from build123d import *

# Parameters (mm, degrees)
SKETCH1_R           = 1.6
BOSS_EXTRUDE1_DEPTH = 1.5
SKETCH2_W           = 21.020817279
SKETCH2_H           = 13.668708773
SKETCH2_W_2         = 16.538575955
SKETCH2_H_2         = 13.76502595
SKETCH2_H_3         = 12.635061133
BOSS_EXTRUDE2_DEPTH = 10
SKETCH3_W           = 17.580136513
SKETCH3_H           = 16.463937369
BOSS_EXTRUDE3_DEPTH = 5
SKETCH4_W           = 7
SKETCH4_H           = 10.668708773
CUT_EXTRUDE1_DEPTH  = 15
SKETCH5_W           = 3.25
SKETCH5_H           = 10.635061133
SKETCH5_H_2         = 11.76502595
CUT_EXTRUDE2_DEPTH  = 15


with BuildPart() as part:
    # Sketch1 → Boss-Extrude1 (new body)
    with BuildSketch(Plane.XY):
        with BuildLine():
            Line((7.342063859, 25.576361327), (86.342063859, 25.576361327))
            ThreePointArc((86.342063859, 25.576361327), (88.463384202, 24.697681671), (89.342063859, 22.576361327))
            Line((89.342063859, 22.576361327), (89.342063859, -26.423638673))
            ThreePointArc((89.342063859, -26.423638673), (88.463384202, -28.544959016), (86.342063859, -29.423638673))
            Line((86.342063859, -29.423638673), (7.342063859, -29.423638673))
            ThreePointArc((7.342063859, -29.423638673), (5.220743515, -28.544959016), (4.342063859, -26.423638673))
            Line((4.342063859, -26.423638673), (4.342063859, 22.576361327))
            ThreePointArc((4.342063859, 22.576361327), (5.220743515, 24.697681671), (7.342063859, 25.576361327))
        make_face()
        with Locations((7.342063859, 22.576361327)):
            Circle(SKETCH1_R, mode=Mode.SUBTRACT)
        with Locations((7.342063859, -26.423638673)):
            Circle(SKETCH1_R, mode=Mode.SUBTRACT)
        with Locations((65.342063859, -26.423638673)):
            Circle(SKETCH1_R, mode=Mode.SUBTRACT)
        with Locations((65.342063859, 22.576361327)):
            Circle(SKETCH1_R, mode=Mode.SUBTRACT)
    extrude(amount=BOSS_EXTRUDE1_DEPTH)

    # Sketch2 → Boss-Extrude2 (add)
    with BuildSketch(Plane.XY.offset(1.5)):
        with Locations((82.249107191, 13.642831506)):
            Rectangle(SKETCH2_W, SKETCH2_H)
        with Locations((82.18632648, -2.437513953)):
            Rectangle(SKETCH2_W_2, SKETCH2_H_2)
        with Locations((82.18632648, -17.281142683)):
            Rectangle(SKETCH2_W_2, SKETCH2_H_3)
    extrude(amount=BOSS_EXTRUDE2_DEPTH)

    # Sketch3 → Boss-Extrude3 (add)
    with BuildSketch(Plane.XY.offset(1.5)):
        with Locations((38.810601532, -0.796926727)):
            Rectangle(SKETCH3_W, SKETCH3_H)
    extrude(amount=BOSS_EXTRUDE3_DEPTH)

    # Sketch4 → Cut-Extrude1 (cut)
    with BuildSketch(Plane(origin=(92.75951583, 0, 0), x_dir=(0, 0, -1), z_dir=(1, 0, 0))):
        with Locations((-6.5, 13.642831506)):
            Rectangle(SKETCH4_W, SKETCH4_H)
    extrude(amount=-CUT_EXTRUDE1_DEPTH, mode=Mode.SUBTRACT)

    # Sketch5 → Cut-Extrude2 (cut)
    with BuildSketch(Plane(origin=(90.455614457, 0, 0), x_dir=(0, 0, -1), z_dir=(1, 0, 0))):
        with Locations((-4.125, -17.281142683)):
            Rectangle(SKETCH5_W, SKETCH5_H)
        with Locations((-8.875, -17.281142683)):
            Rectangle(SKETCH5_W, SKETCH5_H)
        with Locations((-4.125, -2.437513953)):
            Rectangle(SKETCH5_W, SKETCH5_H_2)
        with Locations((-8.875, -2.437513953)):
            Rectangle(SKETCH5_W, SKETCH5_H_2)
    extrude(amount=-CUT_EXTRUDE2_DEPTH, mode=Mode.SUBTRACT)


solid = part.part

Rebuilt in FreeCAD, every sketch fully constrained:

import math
import FreeCAD as App
import Part
import Sketcher

doc = App.newDocument("Part")
body = doc.addObject("PartDesign::Body", "Body")

sketch1 = body.newObject("Sketcher::SketchObject", "Sketch")
sketch1.AttachmentSupport = (doc.getObject("XY_Plane"), [""])
sketch1.MapMode = "FlatFace"
sketch1.addGeometry(Part.LineSegment(App.Vector(86.342064, 25.576361, 0), App.Vector(7.342064, 25.576361, 0)), False)
sketch1.addGeometry(Part.ArcOfCircle(Part.Circle(App.Vector(7.342064, 22.576361, 0), App.Vector(0, 0, 1), 3), math.radians(90), math.radians(180)), False)
sketch1.addGeometry(Part.LineSegment(App.Vector(4.342064, 22.576361, 0), App.Vector(4.342064, -26.423639, 0)), False)
sketch1.addGeometry(Part.ArcOfCircle(Part.Circle(App.Vector(7.342064, -26.423639, 0), App.Vector(0, 0, 1), 3), math.radians(180), math.radians(270)), False)
sketch1.addGeometry(Part.LineSegment(App.Vector(7.342064, -29.423639, 0), App.Vector(86.342064, -29.423639, 0)), False)
sketch1.addGeometry(Part.ArcOfCircle(Part.Circle(App.Vector(86.342064, -26.423639, 0), App.Vector(0, 0, 1), 3), math.radians(-90), math.radians(0)), False)
sketch1.addGeometry(Part.LineSegment(App.Vector(89.342064, -26.423639, 0), App.Vector(89.342064, 22.576361, 0)), False)
sketch1.addGeometry(Part.ArcOfCircle(Part.Circle(App.Vector(86.342064, 22.576361, 0), App.Vector(0, 0, 1), 3), math.radians(0), math.radians(90)), False)
sketch1.addGeometry(Part.Circle(App.Vector(65.342064, -26.423639, 0), App.Vector(0, 0, 1), 1.6), False)
sketch1.addGeometry(Part.Circle(App.Vector(7.342064, -26.423639, 0), App.Vector(0, 0, 1), 1.6), False)
sketch1.addGeometry(Part.Circle(App.Vector(65.342064, 22.576361, 0), App.Vector(0, 0, 1), 1.6), False)
sketch1.addGeometry(Part.Circle(App.Vector(7.342064, 22.576361, 0), App.Vector(0, 0, 1), 1.6), False)
sketch1.addConstraint(Sketcher.Constraint("Tangent", 0, 2, 1, 1))
sketch1.addConstraint(Sketcher.Constraint("Tangent", 1, 2, 2, 1))
sketch1.addConstraint(Sketcher.Constraint("Tangent", 2, 2, 3, 1))
sketch1.addConstraint(Sketcher.Constraint("Tangent", 3, 2, 4, 1))
sketch1.addConstraint(Sketcher.Constraint("Tangent", 4, 2, 5, 1))
sketch1.addConstraint(Sketcher.Constraint("Tangent", 5, 2, 6, 1))
sketch1.addConstraint(Sketcher.Constraint("Tangent", 6, 2, 7, 1))
sketch1.addConstraint(Sketcher.Constraint("Tangent", 7, 2, 0, 1))
sketch1.addConstraint(Sketcher.Constraint("Horizontal", 0))
sketch1.addConstraint(Sketcher.Constraint("Vertical", 2))
sketch1.addConstraint(Sketcher.Constraint("Horizontal", 4))
sketch1.addConstraint(Sketcher.Constraint("Vertical", 6))
sketch1.addConstraint(Sketcher.Constraint("Coincident", 9, 3, 3, 3))
sketch1.addConstraint(Sketcher.Constraint("Coincident", 11, 3, 1, 3))
sketch1.addConstraint(Sketcher.Constraint("Equal", 1, 3))
sketch1.addConstraint(Sketcher.Constraint("Equal", 3, 5))
sketch1.addConstraint(Sketcher.Constraint("Equal", 5, 7))
sketch1.addConstraint(Sketcher.Constraint("Equal", 8, 9))
sketch1.addConstraint(Sketcher.Constraint("Equal", 9, 10))
sketch1.addConstraint(Sketcher.Constraint("Equal", 10, 11))
sketch1.addConstraint(Sketcher.Constraint("Horizontal", 5, 3, 8, 3))
sketch1.addConstraint(Sketcher.Constraint("Horizontal", 7, 3, 10, 3))
sketch1.addConstraint(Sketcher.Constraint("Vertical", 8, 3, 10, 3))
sketch1.addConstraint(Sketcher.Constraint("Radius", 1, 3.0))
sketch1.addConstraint(Sketcher.Constraint("Diameter", 8, 3.2))
sketch1.addConstraint(Sketcher.Constraint("DistanceX", 0, 2, 0, 1, 79.0))
sketch1.addConstraint(Sketcher.Constraint("DistanceY", 2, 2, 2, 1, 49.0))
sketch1.addConstraint(Sketcher.Constraint("DistanceX", 8, 3, 5, 3, 21.0))
sketch1.addConstraint(Sketcher.Constraint("DistanceY", -1, 1, 1, 3, 22.576361))
sketch1.addConstraint(Sketcher.Constraint("DistanceX", -1, 1, 1, 3, 7.342064))
pad1 = body.newObject("PartDesign::Pad", "Pad")
pad1.Profile = sketch1
pad1.Length = 1.5

sketch2 = body.newObject("Sketcher::SketchObject", "Sketch001")
sketch2.AttachmentSupport = (doc.getObject("XY_Plane"), [""])
sketch2.MapMode = "FlatFace"
sketch2.AttachmentOffset = App.Placement(App.Vector(0, 0, 1.5), App.Rotation())
sketch2.addGeometry(Part.LineSegment(App.Vector(71.738699, 20.477186, 0), App.Vector(71.738699, 6.808477, 0)), False)
sketch2.addGeometry(Part.LineSegment(App.Vector(71.738699, 6.808477, 0), App.Vector(92.759516, 6.808477, 0)), False)
sketch2.addGeometry(Part.LineSegment(App.Vector(92.759516, 6.808477, 0), App.Vector(92.759516, 20.477186, 0)), False)
sketch2.addGeometry(Part.LineSegment(App.Vector(92.759516, 20.477186, 0), App.Vector(71.738699, 20.477186, 0)), False)
sketch2.addGeometry(Part.LineSegment(App.Vector(73.917039, 4.444999, 0), App.Vector(73.917039, -9.320027, 0)), False)
sketch2.addGeometry(Part.LineSegment(App.Vector(73.917039, -9.320027, 0), App.Vector(90.455614, -9.320027, 0)), False)
sketch2.addGeometry(Part.LineSegment(App.Vector(90.455614, -9.320027, 0), App.Vector(90.455614, 4.444999, 0)), False)
sketch2.addGeometry(Part.LineSegment(App.Vector(90.455614, 4.444999, 0), App.Vector(73.917039, 4.444999, 0)), False)
sketch2.addGeometry(Part.LineSegment(App.Vector(73.917039, -10.963612, 0), App.Vector(73.917039, -23.598673, 0)), False)
sketch2.addGeometry(Part.LineSegment(App.Vector(73.917039, -23.598673, 0), App.Vector(90.455614, -23.598673, 0)), False)
sketch2.addGeometry(Part.LineSegment(App.Vector(90.455614, -23.598673, 0), App.Vector(90.455614, -10.963612, 0)), False)
sketch2.addGeometry(Part.LineSegment(App.Vector(90.455614, -10.963612, 0), App.Vector(73.917039, -10.963612, 0)), False)
sketch2.addConstraint(Sketcher.Constraint("Coincident", 0, 2, 1, 1))
sketch2.addConstraint(Sketcher.Constraint("Coincident", 1, 2, 2, 1))
sketch2.addConstraint(Sketcher.Constraint("Coincident", 2, 2, 3, 1))
sketch2.addConstraint(Sketcher.Constraint("Coincident", 3, 2, 0, 1))
sketch2.addConstraint(Sketcher.Constraint("Coincident", 4, 2, 5, 1))
sketch2.addConstraint(Sketcher.Constraint("Coincident", 5, 2, 6, 1))
sketch2.addConstraint(Sketcher.Constraint("Coincident", 6, 2, 7, 1))
sketch2.addConstraint(Sketcher.Constraint("Coincident", 7, 2, 4, 1))
sketch2.addConstraint(Sketcher.Constraint("Coincident", 8, 2, 9, 1))
sketch2.addConstraint(Sketcher.Constraint("Coincident", 9, 2, 10, 1))
sketch2.addConstraint(Sketcher.Constraint("Coincident", 10, 2, 11, 1))
sketch2.addConstraint(Sketcher.Constraint("Coincident", 11, 2, 8, 1))
sketch2.addConstraint(Sketcher.Constraint("Vertical", 0))
sketch2.addConstraint(Sketcher.Constraint("Horizontal", 1))
sketch2.addConstraint(Sketcher.Constraint("Vertical", 2))
sketch2.addConstraint(Sketcher.Constraint("Horizontal", 3))
sketch2.addConstraint(Sketcher.Constraint("Vertical", 4))
sketch2.addConstraint(Sketcher.Constraint("Horizontal", 5))
sketch2.addConstraint(Sketcher.Constraint("Vertical", 6))
sketch2.addConstraint(Sketcher.Constraint("Horizontal", 7))
sketch2.addConstraint(Sketcher.Constraint("Vertical", 8))
sketch2.addConstraint(Sketcher.Constraint("Horizontal", 9))
sketch2.addConstraint(Sketcher.Constraint("Vertical", 10))
sketch2.addConstraint(Sketcher.Constraint("Horizontal", 11))
sketch2.addConstraint(Sketcher.Constraint("Vertical", 7, 2, 8, 2))
sketch2.addConstraint(Sketcher.Constraint("Vertical", 6, 2, 9, 2))
sketch2.addConstraint(Sketcher.Constraint("DistanceY", -1, 1, 6, 2, 4.444999))
sketch2.addConstraint(Sketcher.Constraint("DistanceY", 0, 2, 0, 1, 13.668709))
sketch2.addConstraint(Sketcher.Constraint("DistanceY", 8, 2, 8, 1, 12.635061))
sketch2.addConstraint(Sketcher.Constraint("DistanceX", -1, 1, 0, 2, 71.738699))
sketch2.addConstraint(Sketcher.Constraint("DistanceX", 5, 2, 1, 2, 2.303901))
sketch2.addConstraint(Sketcher.Constraint("DistanceX", 1, 1, 1, 2, 21.020817))
sketch2.addConstraint(Sketcher.Constraint("DistanceX", 5, 1, 5, 2, 16.538576))
sketch2.addConstraint(Sketcher.Constraint("DistanceY", 4, 2, 4, 1, 13.765026))
sketch2.addConstraint(Sketcher.Constraint("DistanceY", 6, 2, 1, 2, 2.363478))
sketch2.addConstraint(Sketcher.Constraint("DistanceY", 8, 2, 0, 2, 30.40715))
pad2 = body.newObject("PartDesign::Pad", "Pad001")
pad2.Profile = sketch2
pad2.Length = 10

sketch3 = body.newObject("Sketcher::SketchObject", "Sketch002")
sketch3.AttachmentSupport = (doc.getObject("XY_Plane"), [""])
sketch3.MapMode = "FlatFace"
sketch3.AttachmentOffset = App.Placement(App.Vector(0, 0, 1.5), App.Rotation())
sketch3.addGeometry(Part.LineSegment(App.Vector(30.020533, 7.435042, 0), App.Vector(30.020533, -9.028895, 0)), False)
sketch3.addGeometry(Part.LineSegment(App.Vector(30.020533, -9.028895, 0), App.Vector(47.60067, -9.028895, 0)), False)
sketch3.addGeometry(Part.LineSegment(App.Vector(47.60067, -9.028895, 0), App.Vector(47.60067, 7.435042, 0)), False)
sketch3.addGeometry(Part.LineSegment(App.Vector(47.60067, 7.435042, 0), App.Vector(30.020533, 7.435042, 0)), False)
sketch3.addConstraint(Sketcher.Constraint("Coincident", 0, 2, 1, 1))
sketch3.addConstraint(Sketcher.Constraint("Coincident", 1, 2, 2, 1))
sketch3.addConstraint(Sketcher.Constraint("Coincident", 2, 2, 3, 1))
sketch3.addConstraint(Sketcher.Constraint("Coincident", 3, 2, 0, 1))
sketch3.addConstraint(Sketcher.Constraint("Vertical", 0))
sketch3.addConstraint(Sketcher.Constraint("Horizontal", 1))
sketch3.addConstraint(Sketcher.Constraint("Vertical", 2))
sketch3.addConstraint(Sketcher.Constraint("Horizontal", 3))
sketch3.addConstraint(Sketcher.Constraint("DistanceX", 1, 1, 1, 2, 17.580137))
sketch3.addConstraint(Sketcher.Constraint("DistanceY", 0, 2, 0, 1, 16.463937))
sketch3.addConstraint(Sketcher.Constraint("DistanceX", -1, 1, 1, 2, 47.60067))
sketch3.addConstraint(Sketcher.Constraint("DistanceY", -1, 1, 2, 2, 7.435042))
pad3 = body.newObject("PartDesign::Pad", "Pad002")
pad3.Profile = sketch3
pad3.Length = 5

sketch4 = body.newObject("Sketcher::SketchObject", "Sketch003")
sketch4.AttachmentSupport = (doc.getObject("YZ_Plane"), [""])
sketch4.MapMode = "FlatFace"
sketch4.AttachmentOffset = App.Placement(App.Vector(0, 0, 92.759516), App.Rotation())
sketch4.addGeometry(Part.LineSegment(App.Vector(18.977186, 10, 0), App.Vector(8.308477, 10, 0)), False)
sketch4.addGeometry(Part.LineSegment(App.Vector(8.308477, 10, 0), App.Vector(8.308477, 3, 0)), False)
sketch4.addGeometry(Part.LineSegment(App.Vector(8.308477, 3, 0), App.Vector(18.977186, 3, 0)), False)
sketch4.addGeometry(Part.LineSegment(App.Vector(18.977186, 3, 0), App.Vector(18.977186, 10, 0)), False)
sketch4.addConstraint(Sketcher.Constraint("Coincident", 0, 2, 1, 1))
sketch4.addConstraint(Sketcher.Constraint("Coincident", 1, 2, 2, 1))
sketch4.addConstraint(Sketcher.Constraint("Coincident", 2, 2, 3, 1))
sketch4.addConstraint(Sketcher.Constraint("Coincident", 3, 2, 0, 1))
sketch4.addConstraint(Sketcher.Constraint("Horizontal", 0))
sketch4.addConstraint(Sketcher.Constraint("Vertical", 1))
sketch4.addConstraint(Sketcher.Constraint("Horizontal", 2))
sketch4.addConstraint(Sketcher.Constraint("Vertical", 3))
sketch4.addConstraint(Sketcher.Constraint("DistanceY", 1, 2, 1, 1, 7.0))
sketch4.addConstraint(Sketcher.Constraint("DistanceY", -1, 1, 0, 2, 10.0))
sketch4.addConstraint(Sketcher.Constraint("DistanceX", 0, 2, 0, 1, 10.668709))
sketch4.addConstraint(Sketcher.Constraint("DistanceX", -1, 1, 0, 2, 8.308477))
pocket1 = body.newObject("PartDesign::Pocket", "Pocket")
pocket1.Profile = sketch4
pocket1.Length = 15

sketch5 = body.newObject("Sketcher::SketchObject", "Sketch004")
sketch5.AttachmentSupport = (doc.getObject("YZ_Plane"), [""])
sketch5.MapMode = "FlatFace"
sketch5.AttachmentOffset = App.Placement(App.Vector(0, 0, 90.455614), App.Rotation())
sketch5.addGeometry(Part.LineSegment(App.Vector(-11.963612, 5.75, 0), App.Vector(-22.598673, 5.75, 0)), False)
sketch5.addGeometry(Part.LineSegment(App.Vector(-22.598673, 5.75, 0), App.Vector(-22.598673, 2.5, 0)), False)
sketch5.addGeometry(Part.LineSegment(App.Vector(-22.598673, 2.5, 0), App.Vector(-11.963612, 2.5, 0)), False)
sketch5.addGeometry(Part.LineSegment(App.Vector(-11.963612, 2.5, 0), App.Vector(-11.963612, 5.75, 0)), False)
sketch5.addGeometry(Part.LineSegment(App.Vector(-11.963612, 10.5, 0), App.Vector(-22.598673, 10.5, 0)), False)
sketch5.addGeometry(Part.LineSegment(App.Vector(-22.598673, 10.5, 0), App.Vector(-22.598673, 7.25, 0)), False)
sketch5.addGeometry(Part.LineSegment(App.Vector(-22.598673, 7.25, 0), App.Vector(-11.963612, 7.25, 0)), False)
sketch5.addGeometry(Part.LineSegment(App.Vector(-11.963612, 7.25, 0), App.Vector(-11.963612, 10.5, 0)), False)
sketch5.addGeometry(Part.LineSegment(App.Vector(3.444999, 5.75, 0), App.Vector(-8.320027, 5.75, 0)), False)
sketch5.addGeometry(Part.LineSegment(App.Vector(-8.320027, 5.75, 0), App.Vector(-8.320027, 2.5, 0)), False)
sketch5.addGeometry(Part.LineSegment(App.Vector(-8.320027, 2.5, 0), App.Vector(3.444999, 2.5, 0)), False)
sketch5.addGeometry(Part.LineSegment(App.Vector(3.444999, 2.5, 0), App.Vector(3.444999, 5.75, 0)), False)
sketch5.addGeometry(Part.LineSegment(App.Vector(3.444999, 10.5, 0), App.Vector(-8.320027, 10.5, 0)), False)
sketch5.addGeometry(Part.LineSegment(App.Vector(-8.320027, 10.5, 0), App.Vector(-8.320027, 7.25, 0)), False)
sketch5.addGeometry(Part.LineSegment(App.Vector(-8.320027, 7.25, 0), App.Vector(3.444999, 7.25, 0)), False)
sketch5.addGeometry(Part.LineSegment(App.Vector(3.444999, 7.25, 0), App.Vector(3.444999, 10.5, 0)), False)
sketch5.addConstraint(Sketcher.Constraint("Coincident", 0, 2, 1, 1))
sketch5.addConstraint(Sketcher.Constraint("Coincident", 1, 2, 2, 1))
sketch5.addConstraint(Sketcher.Constraint("Coincident", 2, 2, 3, 1))
sketch5.addConstraint(Sketcher.Constraint("Coincident", 3, 2, 0, 1))
sketch5.addConstraint(Sketcher.Constraint("Coincident", 4, 2, 5, 1))
sketch5.addConstraint(Sketcher.Constraint("Coincident", 5, 2, 6, 1))
sketch5.addConstraint(Sketcher.Constraint("Coincident", 6, 2, 7, 1))
sketch5.addConstraint(Sketcher.Constraint("Coincident", 7, 2, 4, 1))
sketch5.addConstraint(Sketcher.Constraint("Coincident", 8, 2, 9, 1))
sketch5.addConstraint(Sketcher.Constraint("Coincident", 9, 2, 10, 1))
sketch5.addConstraint(Sketcher.Constraint("Coincident", 10, 2, 11, 1))
sketch5.addConstraint(Sketcher.Constraint("Coincident", 11, 2, 8, 1))
sketch5.addConstraint(Sketcher.Constraint("Coincident", 12, 2, 13, 1))
sketch5.addConstraint(Sketcher.Constraint("Coincident", 13, 2, 14, 1))
sketch5.addConstraint(Sketcher.Constraint("Coincident", 14, 2, 15, 1))
sketch5.addConstraint(Sketcher.Constraint("Coincident", 15, 2, 12, 1))
sketch5.addConstraint(Sketcher.Constraint("Horizontal", 0))
sketch5.addConstraint(Sketcher.Constraint("Vertical", 1))
sketch5.addConstraint(Sketcher.Constraint("Horizontal", 2))
sketch5.addConstraint(Sketcher.Constraint("Vertical", 3))
sketch5.addConstraint(Sketcher.Constraint("Horizontal", 4))
sketch5.addConstraint(Sketcher.Constraint("Vertical", 5))
sketch5.addConstraint(Sketcher.Constraint("Horizontal", 6))
sketch5.addConstraint(Sketcher.Constraint("Vertical", 7))
sketch5.addConstraint(Sketcher.Constraint("Horizontal", 8))
sketch5.addConstraint(Sketcher.Constraint("Vertical", 9))
sketch5.addConstraint(Sketcher.Constraint("Horizontal", 10))
sketch5.addConstraint(Sketcher.Constraint("Vertical", 11))
sketch5.addConstraint(Sketcher.Constraint("Horizontal", 12))
sketch5.addConstraint(Sketcher.Constraint("Vertical", 13))
sketch5.addConstraint(Sketcher.Constraint("Horizontal", 14))
sketch5.addConstraint(Sketcher.Constraint("Vertical", 15))
sketch5.addConstraint(Sketcher.Constraint("Horizontal", 3, 2, 8, 2))
sketch5.addConstraint(Sketcher.Constraint("Horizontal", 2, 2, 9, 2))
sketch5.addConstraint(Sketcher.Constraint("Horizontal", 7, 2, 12, 2))
sketch5.addConstraint(Sketcher.Constraint("Horizontal", 6, 2, 13, 2))
sketch5.addConstraint(Sketcher.Constraint("Vertical", 1, 2, 4, 2))
sketch5.addConstraint(Sketcher.Constraint("Vertical", 3, 2, 6, 2))
sketch5.addConstraint(Sketcher.Constraint("Vertical", 9, 2, 12, 2))
sketch5.addConstraint(Sketcher.Constraint("Vertical", 11, 2, 14, 2))
sketch5.addConstraint(Sketcher.Constraint("Equal", 3, 5))
sketch5.addConstraint(Sketcher.Constraint("DistanceY", 1, 2, 4, 2, 8.0))
sketch5.addConstraint(Sketcher.Constraint("DistanceY", 1, 2, 1, 1, 3.25))
sketch5.addConstraint(Sketcher.Constraint("DistanceY", -1, 1, 1, 2, 2.5))
sketch5.addConstraint(Sketcher.Constraint("DistanceX", -1, 1, 10, 2, 3.444999))
sketch5.addConstraint(Sketcher.Constraint("DistanceX", 0, 2, 0, 1, 10.635061))
sketch5.addConstraint(Sketcher.Constraint("DistanceX", 8, 2, 8, 1, 11.765026))
sketch5.addConstraint(Sketcher.Constraint("DistanceX", 2, 2, 10, 2, 15.408611))
pocket2 = body.newObject("PartDesign::Pocket", "Pocket001")
pocket2.Profile = sketch5
pocket2.Length = 15

doc.recompute()
